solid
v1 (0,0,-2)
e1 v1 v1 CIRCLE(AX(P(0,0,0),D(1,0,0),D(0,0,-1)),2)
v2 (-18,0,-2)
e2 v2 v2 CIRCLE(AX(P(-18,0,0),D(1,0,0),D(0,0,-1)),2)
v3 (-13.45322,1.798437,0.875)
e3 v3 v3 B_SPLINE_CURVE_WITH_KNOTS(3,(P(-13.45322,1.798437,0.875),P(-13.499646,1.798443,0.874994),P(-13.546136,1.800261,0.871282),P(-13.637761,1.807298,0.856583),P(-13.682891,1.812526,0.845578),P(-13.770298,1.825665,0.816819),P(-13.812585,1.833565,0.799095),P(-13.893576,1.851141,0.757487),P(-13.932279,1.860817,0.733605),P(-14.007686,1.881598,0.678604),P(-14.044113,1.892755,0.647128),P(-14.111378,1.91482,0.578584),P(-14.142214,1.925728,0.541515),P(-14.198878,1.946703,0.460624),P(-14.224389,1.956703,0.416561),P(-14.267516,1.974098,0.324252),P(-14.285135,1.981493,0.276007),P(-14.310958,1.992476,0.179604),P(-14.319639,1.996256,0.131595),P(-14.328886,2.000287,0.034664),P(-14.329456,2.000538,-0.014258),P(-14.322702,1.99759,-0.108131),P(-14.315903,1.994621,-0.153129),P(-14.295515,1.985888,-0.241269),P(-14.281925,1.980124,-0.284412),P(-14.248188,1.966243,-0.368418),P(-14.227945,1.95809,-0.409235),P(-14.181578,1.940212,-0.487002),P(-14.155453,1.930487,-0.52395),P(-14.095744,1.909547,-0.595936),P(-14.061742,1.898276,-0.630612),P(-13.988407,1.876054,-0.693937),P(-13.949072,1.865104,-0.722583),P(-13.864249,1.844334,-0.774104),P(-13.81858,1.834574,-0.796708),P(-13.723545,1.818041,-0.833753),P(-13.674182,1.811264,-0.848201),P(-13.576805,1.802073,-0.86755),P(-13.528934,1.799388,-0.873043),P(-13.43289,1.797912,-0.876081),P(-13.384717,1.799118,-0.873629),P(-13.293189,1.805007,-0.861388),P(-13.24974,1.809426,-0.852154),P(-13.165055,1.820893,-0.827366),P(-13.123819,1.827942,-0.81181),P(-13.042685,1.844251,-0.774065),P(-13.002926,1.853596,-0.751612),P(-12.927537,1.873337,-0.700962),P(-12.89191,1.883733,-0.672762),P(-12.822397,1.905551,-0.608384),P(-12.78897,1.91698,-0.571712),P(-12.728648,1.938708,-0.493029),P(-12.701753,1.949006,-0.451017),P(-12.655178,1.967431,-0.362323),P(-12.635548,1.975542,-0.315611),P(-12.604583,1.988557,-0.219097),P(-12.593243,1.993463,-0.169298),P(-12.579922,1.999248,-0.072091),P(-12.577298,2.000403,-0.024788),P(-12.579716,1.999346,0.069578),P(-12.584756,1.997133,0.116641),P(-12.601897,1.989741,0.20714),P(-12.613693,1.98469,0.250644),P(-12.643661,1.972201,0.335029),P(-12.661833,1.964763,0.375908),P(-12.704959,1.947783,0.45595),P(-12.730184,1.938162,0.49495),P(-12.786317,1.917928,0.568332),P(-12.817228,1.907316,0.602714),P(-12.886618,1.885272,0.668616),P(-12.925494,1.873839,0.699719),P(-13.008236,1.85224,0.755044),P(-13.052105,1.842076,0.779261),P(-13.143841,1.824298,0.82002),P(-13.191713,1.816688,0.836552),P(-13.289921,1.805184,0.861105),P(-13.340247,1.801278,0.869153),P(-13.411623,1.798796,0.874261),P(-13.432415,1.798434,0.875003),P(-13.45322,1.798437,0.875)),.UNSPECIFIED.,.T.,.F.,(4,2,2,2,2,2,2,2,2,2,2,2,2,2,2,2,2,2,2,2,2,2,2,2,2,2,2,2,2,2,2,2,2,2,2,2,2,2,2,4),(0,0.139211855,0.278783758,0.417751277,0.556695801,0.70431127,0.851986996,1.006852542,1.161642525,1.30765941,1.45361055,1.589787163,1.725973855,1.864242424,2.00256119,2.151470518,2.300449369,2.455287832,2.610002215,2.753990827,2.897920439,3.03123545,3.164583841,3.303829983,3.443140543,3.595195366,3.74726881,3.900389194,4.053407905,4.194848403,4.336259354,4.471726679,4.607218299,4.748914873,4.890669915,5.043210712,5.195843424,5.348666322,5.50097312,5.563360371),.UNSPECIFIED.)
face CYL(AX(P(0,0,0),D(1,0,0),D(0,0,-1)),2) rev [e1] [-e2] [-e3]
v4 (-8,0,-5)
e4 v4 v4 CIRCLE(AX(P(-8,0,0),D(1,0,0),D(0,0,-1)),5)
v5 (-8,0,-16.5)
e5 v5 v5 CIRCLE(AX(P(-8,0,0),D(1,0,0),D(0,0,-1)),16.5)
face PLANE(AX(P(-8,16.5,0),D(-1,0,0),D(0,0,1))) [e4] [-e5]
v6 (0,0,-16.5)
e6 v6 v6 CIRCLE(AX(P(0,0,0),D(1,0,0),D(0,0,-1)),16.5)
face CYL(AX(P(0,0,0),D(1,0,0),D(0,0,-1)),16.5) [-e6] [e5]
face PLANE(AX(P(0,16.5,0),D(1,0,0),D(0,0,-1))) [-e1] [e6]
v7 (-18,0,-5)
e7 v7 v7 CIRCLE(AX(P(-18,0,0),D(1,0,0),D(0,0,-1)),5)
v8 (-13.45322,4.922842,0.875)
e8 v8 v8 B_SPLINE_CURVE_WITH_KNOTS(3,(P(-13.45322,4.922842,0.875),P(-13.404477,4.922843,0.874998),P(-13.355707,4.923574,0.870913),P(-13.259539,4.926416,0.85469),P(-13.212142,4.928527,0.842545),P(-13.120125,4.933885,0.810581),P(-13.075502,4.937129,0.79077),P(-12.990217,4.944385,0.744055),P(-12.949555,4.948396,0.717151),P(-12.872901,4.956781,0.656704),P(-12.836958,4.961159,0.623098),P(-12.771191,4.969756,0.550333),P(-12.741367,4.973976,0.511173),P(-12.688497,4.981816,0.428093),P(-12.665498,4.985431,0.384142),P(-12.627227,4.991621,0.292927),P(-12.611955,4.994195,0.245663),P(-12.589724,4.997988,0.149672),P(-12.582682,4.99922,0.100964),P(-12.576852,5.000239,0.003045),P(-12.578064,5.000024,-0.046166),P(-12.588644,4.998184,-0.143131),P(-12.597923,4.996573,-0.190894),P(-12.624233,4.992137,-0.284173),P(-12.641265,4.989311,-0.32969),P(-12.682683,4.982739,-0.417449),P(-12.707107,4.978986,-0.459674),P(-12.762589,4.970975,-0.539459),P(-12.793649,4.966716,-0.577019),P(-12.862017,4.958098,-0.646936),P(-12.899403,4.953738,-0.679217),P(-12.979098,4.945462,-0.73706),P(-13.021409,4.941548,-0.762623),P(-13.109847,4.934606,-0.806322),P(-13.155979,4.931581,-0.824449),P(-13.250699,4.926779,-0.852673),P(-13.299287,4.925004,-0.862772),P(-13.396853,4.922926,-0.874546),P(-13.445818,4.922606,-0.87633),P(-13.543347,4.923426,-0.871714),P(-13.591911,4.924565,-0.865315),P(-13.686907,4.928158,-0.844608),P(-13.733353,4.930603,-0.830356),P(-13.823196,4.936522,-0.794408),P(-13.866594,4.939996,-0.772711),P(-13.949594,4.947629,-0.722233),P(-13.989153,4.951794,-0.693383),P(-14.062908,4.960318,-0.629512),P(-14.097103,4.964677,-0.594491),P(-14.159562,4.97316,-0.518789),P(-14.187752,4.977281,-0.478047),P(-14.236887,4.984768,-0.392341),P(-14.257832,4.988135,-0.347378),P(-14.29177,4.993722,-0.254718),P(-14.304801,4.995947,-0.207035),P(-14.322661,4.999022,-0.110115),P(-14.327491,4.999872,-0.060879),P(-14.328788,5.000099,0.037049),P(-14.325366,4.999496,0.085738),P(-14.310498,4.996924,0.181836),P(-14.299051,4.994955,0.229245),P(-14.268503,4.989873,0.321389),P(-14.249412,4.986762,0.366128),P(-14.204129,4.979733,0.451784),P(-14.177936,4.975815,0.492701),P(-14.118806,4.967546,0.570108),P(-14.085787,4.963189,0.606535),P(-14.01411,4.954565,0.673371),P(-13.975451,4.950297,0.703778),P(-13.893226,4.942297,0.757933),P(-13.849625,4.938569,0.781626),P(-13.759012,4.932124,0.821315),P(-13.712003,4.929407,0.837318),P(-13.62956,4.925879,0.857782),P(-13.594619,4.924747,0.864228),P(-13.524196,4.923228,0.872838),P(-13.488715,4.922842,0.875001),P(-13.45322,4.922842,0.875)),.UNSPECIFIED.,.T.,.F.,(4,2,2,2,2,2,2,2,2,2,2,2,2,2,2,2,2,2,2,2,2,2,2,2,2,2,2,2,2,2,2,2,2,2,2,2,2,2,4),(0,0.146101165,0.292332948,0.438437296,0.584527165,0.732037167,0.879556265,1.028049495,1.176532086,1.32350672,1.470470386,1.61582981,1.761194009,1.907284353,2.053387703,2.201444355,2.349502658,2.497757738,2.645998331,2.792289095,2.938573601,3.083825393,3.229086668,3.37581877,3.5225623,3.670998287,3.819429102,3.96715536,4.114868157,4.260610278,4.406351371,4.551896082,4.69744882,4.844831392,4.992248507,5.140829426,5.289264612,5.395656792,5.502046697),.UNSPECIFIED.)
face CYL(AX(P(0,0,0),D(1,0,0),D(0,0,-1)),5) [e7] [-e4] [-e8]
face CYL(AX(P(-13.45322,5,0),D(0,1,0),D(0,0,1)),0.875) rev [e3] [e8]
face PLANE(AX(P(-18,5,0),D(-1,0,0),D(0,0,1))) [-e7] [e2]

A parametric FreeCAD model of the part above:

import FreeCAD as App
import Part
import Sketcher
from FreeCAD import Vector
Q = App.Units.Quantity

doc = App.newDocument("Part")
body = doc.addObject("PartDesign::Body", "Body")

# Sketch on XY plane
sketch1 = doc.addObject("Sketcher::SketchObject", "Sketch")
body.addObject(sketch1)
sketch1.AttachmentSupport = (doc.XY_Plane, [""])
sketch1.MapMode = "FlatFace"
sketch1.addGeometry([
    Part.LineSegment(Vector(0, 2, 0), Vector(0, 16.5, 0)),  # 0
    Part.LineSegment(Vector(0, 16.5, 0), Vector(-8, 16.5, 0)),  # 1
    Part.LineSegment(Vector(-8, 16.5, 0), Vector(-8, 5, 0)),  # 2
    Part.LineSegment(Vector(-8, 5, 0), Vector(-18, 5, 0)),  # 3
    Part.LineSegment(Vector(-18, 5, 0), Vector(-18, 2, 0)),  # 4
    Part.LineSegment(Vector(-18, 2, 0), Vector(0, 2, 0)),  # 5
], False)
sketch1.addConstraint([
    Sketcher.Constraint("Coincident", 0, 2, 1, 1),
    Sketcher.Constraint("Coincident", 1, 2, 2, 1),
    Sketcher.Constraint("Coincident", 2, 2, 3, 1),
    Sketcher.Constraint("Coincident", 3, 2, 4, 1),
    Sketcher.Constraint("Coincident", 4, 2, 5, 1),
    Sketcher.Constraint("Coincident", 5, 2, 0, 1),
    Sketcher.Constraint("Vertical", 0),
    Sketcher.Constraint("Horizontal", 1),
    Sketcher.Constraint("Vertical", 2),
    Sketcher.Constraint("Horizontal", 3),
    Sketcher.Constraint("Vertical", 4),
    Sketcher.Constraint("Horizontal", 5),
    Sketcher.Constraint("PointOnObject", 0, 2, -2),
    Sketcher.Constraint("DistanceX", 1, 2, 1, 1, Q("8 mm")),
    Sketcher.Constraint("DistanceX", 3, 2, 3, 1, Q("10 mm")),
    Sketcher.Constraint("DistanceY", 4, 2, 4, 1, Q("3 mm")),
    Sketcher.Constraint("DistanceY", 0, 1, 0, 2, Q("14.5 mm")),
    Sketcher.Constraint("DistanceY", -1, 1, 2, 2, Q("5 mm")),
])
revolution = doc.addObject("PartDesign::Revolution", "Revolution")
body.addObject(revolution)
revolution.Profile = sketch1
revolution.ReferenceAxis = (sketch1, ["H_Axis"])
revolution.Angle = 360

# Sketch on XZ plane
sketch2 = doc.addObject("Sketcher::SketchObject", "Sketch001")
body.addObject(sketch2)
sketch2.AttachmentSupport = (doc.XZ_Plane, [""])
sketch2.MapMode = "FlatFace"
sketch2.AttachmentOffset = App.Placement(Vector(0, 0, -5), App.Rotation())
sketch2.addGeometry(Part.Circle(Vector(-13.5, 0, 0), Vector(0, 0, 1), 0.9), False)
sketch2.addConstraint([
    Sketcher.Constraint("PointOnObject", 0, 3, -1),
    Sketcher.Constraint("Diameter", 0, Q("1.75 mm")),
    Sketcher.Constraint("DistanceX", 0, 3, -1, 1, Q("13.45322 mm")),
])
pocket1 = doc.addObject("PartDesign::Pocket", "Pocket")
body.addObject(pocket1)
pocket1.Profile = sketch2
pocket1.Length = 3.201563
pocket1.Reversed = True

doc.recompute()
